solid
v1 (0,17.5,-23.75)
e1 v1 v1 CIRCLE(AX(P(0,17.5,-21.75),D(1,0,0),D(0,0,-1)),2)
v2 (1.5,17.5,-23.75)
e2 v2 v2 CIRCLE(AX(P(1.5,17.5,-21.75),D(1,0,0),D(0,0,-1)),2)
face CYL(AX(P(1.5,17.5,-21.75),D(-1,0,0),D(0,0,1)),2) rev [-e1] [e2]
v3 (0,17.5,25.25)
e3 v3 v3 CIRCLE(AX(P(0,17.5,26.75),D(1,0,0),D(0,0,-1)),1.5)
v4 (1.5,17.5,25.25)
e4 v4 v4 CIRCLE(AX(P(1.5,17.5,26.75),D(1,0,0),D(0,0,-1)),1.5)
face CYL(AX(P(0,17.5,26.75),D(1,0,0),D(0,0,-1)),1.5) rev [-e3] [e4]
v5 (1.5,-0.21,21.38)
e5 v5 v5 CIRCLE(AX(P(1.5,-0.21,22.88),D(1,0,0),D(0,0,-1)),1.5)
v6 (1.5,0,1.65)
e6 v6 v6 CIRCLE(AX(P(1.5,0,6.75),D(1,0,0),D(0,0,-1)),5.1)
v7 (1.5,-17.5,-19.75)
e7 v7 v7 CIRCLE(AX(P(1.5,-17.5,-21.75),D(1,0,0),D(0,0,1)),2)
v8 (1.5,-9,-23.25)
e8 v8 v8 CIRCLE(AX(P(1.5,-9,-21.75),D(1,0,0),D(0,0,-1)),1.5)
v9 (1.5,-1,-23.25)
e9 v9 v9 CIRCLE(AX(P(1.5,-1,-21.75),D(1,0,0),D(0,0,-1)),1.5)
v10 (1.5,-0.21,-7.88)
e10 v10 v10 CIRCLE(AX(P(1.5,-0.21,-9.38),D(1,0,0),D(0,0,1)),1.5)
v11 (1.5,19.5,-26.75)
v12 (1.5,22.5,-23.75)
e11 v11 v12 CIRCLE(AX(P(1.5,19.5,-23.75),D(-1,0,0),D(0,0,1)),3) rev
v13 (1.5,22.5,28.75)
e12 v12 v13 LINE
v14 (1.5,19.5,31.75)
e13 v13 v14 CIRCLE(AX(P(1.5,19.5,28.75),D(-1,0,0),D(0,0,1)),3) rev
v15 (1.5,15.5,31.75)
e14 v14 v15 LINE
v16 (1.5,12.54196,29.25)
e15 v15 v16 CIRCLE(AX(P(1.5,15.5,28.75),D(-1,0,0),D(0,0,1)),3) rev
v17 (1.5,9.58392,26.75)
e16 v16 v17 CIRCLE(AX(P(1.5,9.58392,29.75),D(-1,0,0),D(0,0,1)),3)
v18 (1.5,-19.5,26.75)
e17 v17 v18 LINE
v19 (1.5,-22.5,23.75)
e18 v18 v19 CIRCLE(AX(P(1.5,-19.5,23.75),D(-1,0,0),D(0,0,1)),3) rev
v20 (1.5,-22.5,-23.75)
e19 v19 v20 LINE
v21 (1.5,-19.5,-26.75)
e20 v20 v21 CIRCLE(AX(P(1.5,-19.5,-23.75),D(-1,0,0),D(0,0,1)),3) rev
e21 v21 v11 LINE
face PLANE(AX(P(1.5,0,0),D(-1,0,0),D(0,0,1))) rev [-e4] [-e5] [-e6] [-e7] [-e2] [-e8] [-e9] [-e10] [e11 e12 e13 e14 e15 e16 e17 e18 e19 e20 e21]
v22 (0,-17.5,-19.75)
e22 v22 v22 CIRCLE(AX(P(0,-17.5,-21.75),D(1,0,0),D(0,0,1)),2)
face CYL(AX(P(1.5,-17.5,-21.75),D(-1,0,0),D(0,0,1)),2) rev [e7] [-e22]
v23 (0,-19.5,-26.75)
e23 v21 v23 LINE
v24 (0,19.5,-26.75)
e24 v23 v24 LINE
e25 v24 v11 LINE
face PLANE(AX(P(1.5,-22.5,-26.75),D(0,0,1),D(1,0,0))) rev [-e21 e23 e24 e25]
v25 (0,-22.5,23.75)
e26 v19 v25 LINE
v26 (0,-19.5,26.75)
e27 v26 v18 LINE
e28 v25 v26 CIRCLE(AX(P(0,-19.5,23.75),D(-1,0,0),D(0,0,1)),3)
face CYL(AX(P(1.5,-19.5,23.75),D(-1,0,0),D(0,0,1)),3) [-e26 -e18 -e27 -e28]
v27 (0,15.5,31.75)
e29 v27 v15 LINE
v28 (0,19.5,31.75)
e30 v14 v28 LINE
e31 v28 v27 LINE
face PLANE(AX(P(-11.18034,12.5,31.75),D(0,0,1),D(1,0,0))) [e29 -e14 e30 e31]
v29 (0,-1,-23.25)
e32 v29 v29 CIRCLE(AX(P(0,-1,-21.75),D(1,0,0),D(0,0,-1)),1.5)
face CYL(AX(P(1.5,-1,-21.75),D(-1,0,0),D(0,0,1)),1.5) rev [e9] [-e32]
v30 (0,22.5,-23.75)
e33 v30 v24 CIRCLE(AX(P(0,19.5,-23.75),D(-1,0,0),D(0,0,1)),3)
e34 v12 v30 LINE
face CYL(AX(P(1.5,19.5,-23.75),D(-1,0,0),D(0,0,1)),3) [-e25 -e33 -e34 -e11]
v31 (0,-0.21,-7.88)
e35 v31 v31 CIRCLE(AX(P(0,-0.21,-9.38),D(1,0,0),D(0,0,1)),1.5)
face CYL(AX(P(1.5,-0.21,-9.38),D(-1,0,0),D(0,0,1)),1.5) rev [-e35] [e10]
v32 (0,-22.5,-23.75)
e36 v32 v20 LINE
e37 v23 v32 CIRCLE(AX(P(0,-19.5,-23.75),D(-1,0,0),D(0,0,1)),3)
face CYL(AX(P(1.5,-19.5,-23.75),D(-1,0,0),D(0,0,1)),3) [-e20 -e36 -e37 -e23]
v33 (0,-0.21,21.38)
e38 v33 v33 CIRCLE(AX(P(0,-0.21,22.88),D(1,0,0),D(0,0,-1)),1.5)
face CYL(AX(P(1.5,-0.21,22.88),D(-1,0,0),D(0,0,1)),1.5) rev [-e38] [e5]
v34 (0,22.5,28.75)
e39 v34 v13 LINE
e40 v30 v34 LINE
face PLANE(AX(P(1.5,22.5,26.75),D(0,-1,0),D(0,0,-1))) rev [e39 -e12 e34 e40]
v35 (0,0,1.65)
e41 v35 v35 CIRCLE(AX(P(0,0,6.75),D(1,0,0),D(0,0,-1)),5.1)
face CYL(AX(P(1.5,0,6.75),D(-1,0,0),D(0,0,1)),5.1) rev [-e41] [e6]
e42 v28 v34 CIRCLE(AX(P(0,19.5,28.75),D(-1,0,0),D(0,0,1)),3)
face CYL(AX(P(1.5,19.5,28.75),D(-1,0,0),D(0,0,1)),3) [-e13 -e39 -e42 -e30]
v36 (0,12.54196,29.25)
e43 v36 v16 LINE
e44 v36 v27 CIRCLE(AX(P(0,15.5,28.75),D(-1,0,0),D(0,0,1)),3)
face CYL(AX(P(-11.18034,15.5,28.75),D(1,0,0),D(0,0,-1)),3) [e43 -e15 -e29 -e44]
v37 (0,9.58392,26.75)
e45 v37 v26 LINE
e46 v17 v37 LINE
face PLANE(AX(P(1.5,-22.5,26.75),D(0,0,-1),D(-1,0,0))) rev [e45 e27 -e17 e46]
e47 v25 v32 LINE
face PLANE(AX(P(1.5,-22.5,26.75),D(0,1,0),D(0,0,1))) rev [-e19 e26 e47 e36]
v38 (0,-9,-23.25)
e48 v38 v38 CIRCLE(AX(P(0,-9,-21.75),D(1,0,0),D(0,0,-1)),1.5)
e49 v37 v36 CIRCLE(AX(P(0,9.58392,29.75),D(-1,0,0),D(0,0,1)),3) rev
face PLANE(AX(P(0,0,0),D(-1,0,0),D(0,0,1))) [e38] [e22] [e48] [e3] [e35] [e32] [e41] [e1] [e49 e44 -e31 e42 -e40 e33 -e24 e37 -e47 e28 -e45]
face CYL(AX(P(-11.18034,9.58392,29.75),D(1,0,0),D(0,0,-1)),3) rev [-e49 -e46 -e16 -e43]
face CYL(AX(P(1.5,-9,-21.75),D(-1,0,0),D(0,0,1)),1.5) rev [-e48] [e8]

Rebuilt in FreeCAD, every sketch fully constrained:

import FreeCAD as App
import Part
import Sketcher
from FreeCAD import Vector


def edges_at(feature, points):
    """Names of the edges that pass closest to the given points."""
    edges = feature.Shape.Edges
    near = lambda p: min(range(len(edges)), key=lambda i: edges[i].distToShape(Part.Vertex(*p))[0])
    return sorted({f"Edge{near(p) + 1}" for p in points})

doc = App.newDocument("Part")
body = doc.addObject("PartDesign::Body", "Body")

# Sketch on YZ plane
sketch1 = body.newObject("Sketcher::SketchObject", "Sketch")
sketch1.AttachmentSupport = (doc.getObject("YZ_Plane"), [""])
sketch1.MapMode = "FlatFace"
sketch1.addGeometry(Part.LineSegment(Vector(22.5, 26.8, 0), Vector(-22.5, 26.8, 0)), False)
sketch1.addGeometry(Part.LineSegment(Vector(-22.5, 26.8, 0), Vector(-22.5, -26.8, 0)), False)
sketch1.addGeometry(Part.LineSegment(Vector(-22.5, -26.8, 0), Vector(22.5, -26.8, 0)), False)
sketch1.addGeometry(Part.LineSegment(Vector(22.5, -26.8, 0), Vector(22.5, 26.8, 0)), False)
sketch1.addGeometry(Part.Circle(Vector(-0.2, 22.9, 0), Vector(0, 0, 1), 1.5), False)
sketch1.addGeometry(Part.Circle(Vector(-17.5, -21.8, 0), Vector(0, 0, 1), 2), False)
sketch1.addGeometry(Part.Circle(Vector(-0.2, -9.4, 0), Vector(0, 0, 1), 1.5), False)
sketch1.addGeometry(Part.Circle(Vector(-9, -21.8, 0), Vector(0, 0, 1), 1.5), False)
sketch1.addGeometry(Part.Circle(Vector(-1, -21.8, 0), Vector(0, 0, 1), 1.5), False)
sketch1.addGeometry(Part.Circle(Vector(0, 6.8, 0), Vector(0, 0, 1), 5.1), False)
sketch1.addGeometry(Part.Circle(Vector(17.5, -21.8, 0), Vector(0, 0, 1), 2), False)
sketch1.addConstraint(Sketcher.Constraint("Coincident", 0, 2, 1, 1))
sketch1.addConstraint(Sketcher.Constraint("Coincident", 1, 2, 2, 1))
sketch1.addConstraint(Sketcher.Constraint("Coincident", 2, 2, 3, 1))
sketch1.addConstraint(Sketcher.Constraint("Coincident", 3, 2, 0, 1))
sketch1.addConstraint(Sketcher.Constraint("Horizontal", 0))
sketch1.addConstraint(Sketcher.Constraint("Vertical", 1))
sketch1.addConstraint(Sketcher.Constraint("Horizontal", 2))
sketch1.addConstraint(Sketcher.Constraint("Vertical", 3))
sketch1.addConstraint(Sketcher.Constraint("Equal", 4, 6))
sketch1.addConstraint(Sketcher.Constraint("Equal", 6, 7))
sketch1.addConstraint(Sketcher.Constraint("Equal", 7, 8))
sketch1.addConstraint(Sketcher.Constraint("Equal", 5, 10))
sketch1.addConstraint(Sketcher.Constraint("Symmetric", 0, 2, 2, 2, -1, 1))
sketch1.addConstraint(Sketcher.Constraint("Symmetric", 5, 3, 10, 3, -2))
sketch1.addConstraint(Sketcher.Constraint("PointOnObject", 9, 3, -2))
sketch1.addConstraint(Sketcher.Constraint("Horizontal", 5, 3, 7, 3))
sketch1.addConstraint(Sketcher.Constraint("Horizontal", 7, 3, 8, 3))
sketch1.addConstraint(Sketcher.Constraint("Vertical", 4, 3, 6, 3))
sketch1.addConstraint(Sketcher.Constraint("Diameter", 4, 3.0))
sketch1.addConstraint(Sketcher.Constraint("Diameter", 5, 4.0))
sketch1.addConstraint(Sketcher.Constraint("Diameter", 9, 10.2))
sketch1.addConstraint(Sketcher.Constraint("DistanceX", 0, 2, 0, 1, 45.0))
sketch1.addConstraint(Sketcher.Constraint("DistanceY", 1, 2, 1, 1, 53.5))
sketch1.addConstraint(Sketcher.Constraint("DistanceX", 7, 3, -1, 1, 9.0))
sketch1.addConstraint(Sketcher.Constraint("DistanceX", 8, 3, -1, 1, 1.0))
sketch1.addConstraint(Sketcher.Constraint("DistanceX", 5, 3, 10, 3, 35.0))
sketch1.addConstraint(Sketcher.Constraint("DistanceY", 9, 3, 0, 2, 20.0))
sketch1.addConstraint(Sketcher.Constraint("DistanceY", 1, 2, 5, 3, 5.0))
sketch1.addConstraint(Sketcher.Constraint("DistanceX", 4, 3, -1, 1, 0.21))
sketch1.addConstraint(Sketcher.Constraint("DistanceY", -1, 1, 4, 3, 22.88))
sketch1.addConstraint(Sketcher.Constraint("DistanceY", 6, 3, -1, 1, 9.38))
pad1 = body.newObject("PartDesign::Pad", "Pad")
pad1.Profile = sketch1
pad1.Length = 1.5

# Sketch on YZ plane
sketch2 = body.newObject("Sketcher::SketchObject", "Sketch001")
sketch2.AttachmentSupport = (doc.getObject("YZ_Plane"), [""])
sketch2.MapMode = "FlatFace"
sketch2.AttachmentOffset = App.Placement(Vector(0, 0, 1.5), App.Rotation())
sketch2.addGeometry(Part.LineSegment(Vector(22, 32, 0), Vector(12, 32, 0)), False)
sketch2.addGeometry(Part.LineSegment(Vector(12, 32, 0), Vector(12, 27, 0)), False)
sketch2.addGeometry(Part.LineSegment(Vector(12, 27, 0), Vector(22, 27, 0)), False)
sketch2.addGeometry(Part.LineSegment(Vector(22, 27, 0), Vector(22, 32, 0)), False)
sketch2.addConstraint(Sketcher.Constraint("Coincident", 0, 2, 1, 1))
sketch2.addConstraint(Sketcher.Constraint("Coincident", 1, 2, 2, 1))
sketch2.addConstraint(Sketcher.Constraint("Coincident", 2, 2, 3, 1))
sketch2.addConstraint(Sketcher.Constraint("Coincident", 3, 2, 0, 1))
sketch2.addConstraint(Sketcher.Constraint("Horizontal", 0))
sketch2.addConstraint(Sketcher.Constraint("Vertical", 1))
sketch2.addConstraint(Sketcher.Constraint("Horizontal", 2))
sketch2.addConstraint(Sketcher.Constraint("Vertical", 3))
sketch2.addConstraint(Sketcher.Constraint("DistanceX", 0, 2, 0, 1, 10.0))
sketch2.addConstraint(Sketcher.Constraint("DistanceY", 1, 2, 1, 1, 5.0))
sketch2.addConstraint(Sketcher.Constraint("DistanceX", -1, 1, 0, 2, 12.5))
sketch2.addConstraint(Sketcher.Constraint("DistanceY", -1, 1, 0, 2, 31.75))
pad2 = body.newObject("PartDesign::Pad", "Pad001")
pad2.Profile = sketch2
pad2.Length = 1.5
pad2.Reversed = True

# Sketch on YZ plane
sketch3 = body.newObject("Sketcher::SketchObject", "Sketch002")
sketch3.AttachmentSupport = (doc.getObject("YZ_Plane"), [""])
sketch3.MapMode = "FlatFace"
sketch3.AttachmentOffset = App.Placement(Vector(0, 0, 1.5), App.Rotation())
sketch3.addGeometry(Part.Circle(Vector(17.5, 26.8, 0), Vector(0, 0, 1), 1.5), False)
sketch3.addConstraint(Sketcher.Constraint("Diameter", 0, 3.0))
sketch3.addConstraint(Sketcher.Constraint("DistanceX", -1, 1, 0, 3, 17.5))
sketch3.addConstraint(Sketcher.Constraint("DistanceY", -1, 1, 0, 3, 26.75))
pocket1 = body.newObject("PartDesign::Pocket", "Pocket")
pocket1.Profile = sketch3
pocket1.Type = "ThroughAll"
doc.recompute()

fillet = body.newObject("PartDesign::Fillet", "Fillet")
fillet.Base = (pocket1, edges_at(pocket1, [
    (0.75, 22.5, 31.75),
    (0.75, 12.5, 31.75),
    (0.75, -22.5, -26.75),
    (0.75, -22.5, 26.75),
    (0.75, 22.5, -26.75),
]))
fillet.Radius = 3
doc.recompute()

fillet2 = body.newObject("PartDesign::Fillet", "Fillet001")
fillet2.Base = (fillet, edges_at(fillet, [(0.75, 12.5, 26.75)]))
fillet2.Radius = 3

doc.recompute()
